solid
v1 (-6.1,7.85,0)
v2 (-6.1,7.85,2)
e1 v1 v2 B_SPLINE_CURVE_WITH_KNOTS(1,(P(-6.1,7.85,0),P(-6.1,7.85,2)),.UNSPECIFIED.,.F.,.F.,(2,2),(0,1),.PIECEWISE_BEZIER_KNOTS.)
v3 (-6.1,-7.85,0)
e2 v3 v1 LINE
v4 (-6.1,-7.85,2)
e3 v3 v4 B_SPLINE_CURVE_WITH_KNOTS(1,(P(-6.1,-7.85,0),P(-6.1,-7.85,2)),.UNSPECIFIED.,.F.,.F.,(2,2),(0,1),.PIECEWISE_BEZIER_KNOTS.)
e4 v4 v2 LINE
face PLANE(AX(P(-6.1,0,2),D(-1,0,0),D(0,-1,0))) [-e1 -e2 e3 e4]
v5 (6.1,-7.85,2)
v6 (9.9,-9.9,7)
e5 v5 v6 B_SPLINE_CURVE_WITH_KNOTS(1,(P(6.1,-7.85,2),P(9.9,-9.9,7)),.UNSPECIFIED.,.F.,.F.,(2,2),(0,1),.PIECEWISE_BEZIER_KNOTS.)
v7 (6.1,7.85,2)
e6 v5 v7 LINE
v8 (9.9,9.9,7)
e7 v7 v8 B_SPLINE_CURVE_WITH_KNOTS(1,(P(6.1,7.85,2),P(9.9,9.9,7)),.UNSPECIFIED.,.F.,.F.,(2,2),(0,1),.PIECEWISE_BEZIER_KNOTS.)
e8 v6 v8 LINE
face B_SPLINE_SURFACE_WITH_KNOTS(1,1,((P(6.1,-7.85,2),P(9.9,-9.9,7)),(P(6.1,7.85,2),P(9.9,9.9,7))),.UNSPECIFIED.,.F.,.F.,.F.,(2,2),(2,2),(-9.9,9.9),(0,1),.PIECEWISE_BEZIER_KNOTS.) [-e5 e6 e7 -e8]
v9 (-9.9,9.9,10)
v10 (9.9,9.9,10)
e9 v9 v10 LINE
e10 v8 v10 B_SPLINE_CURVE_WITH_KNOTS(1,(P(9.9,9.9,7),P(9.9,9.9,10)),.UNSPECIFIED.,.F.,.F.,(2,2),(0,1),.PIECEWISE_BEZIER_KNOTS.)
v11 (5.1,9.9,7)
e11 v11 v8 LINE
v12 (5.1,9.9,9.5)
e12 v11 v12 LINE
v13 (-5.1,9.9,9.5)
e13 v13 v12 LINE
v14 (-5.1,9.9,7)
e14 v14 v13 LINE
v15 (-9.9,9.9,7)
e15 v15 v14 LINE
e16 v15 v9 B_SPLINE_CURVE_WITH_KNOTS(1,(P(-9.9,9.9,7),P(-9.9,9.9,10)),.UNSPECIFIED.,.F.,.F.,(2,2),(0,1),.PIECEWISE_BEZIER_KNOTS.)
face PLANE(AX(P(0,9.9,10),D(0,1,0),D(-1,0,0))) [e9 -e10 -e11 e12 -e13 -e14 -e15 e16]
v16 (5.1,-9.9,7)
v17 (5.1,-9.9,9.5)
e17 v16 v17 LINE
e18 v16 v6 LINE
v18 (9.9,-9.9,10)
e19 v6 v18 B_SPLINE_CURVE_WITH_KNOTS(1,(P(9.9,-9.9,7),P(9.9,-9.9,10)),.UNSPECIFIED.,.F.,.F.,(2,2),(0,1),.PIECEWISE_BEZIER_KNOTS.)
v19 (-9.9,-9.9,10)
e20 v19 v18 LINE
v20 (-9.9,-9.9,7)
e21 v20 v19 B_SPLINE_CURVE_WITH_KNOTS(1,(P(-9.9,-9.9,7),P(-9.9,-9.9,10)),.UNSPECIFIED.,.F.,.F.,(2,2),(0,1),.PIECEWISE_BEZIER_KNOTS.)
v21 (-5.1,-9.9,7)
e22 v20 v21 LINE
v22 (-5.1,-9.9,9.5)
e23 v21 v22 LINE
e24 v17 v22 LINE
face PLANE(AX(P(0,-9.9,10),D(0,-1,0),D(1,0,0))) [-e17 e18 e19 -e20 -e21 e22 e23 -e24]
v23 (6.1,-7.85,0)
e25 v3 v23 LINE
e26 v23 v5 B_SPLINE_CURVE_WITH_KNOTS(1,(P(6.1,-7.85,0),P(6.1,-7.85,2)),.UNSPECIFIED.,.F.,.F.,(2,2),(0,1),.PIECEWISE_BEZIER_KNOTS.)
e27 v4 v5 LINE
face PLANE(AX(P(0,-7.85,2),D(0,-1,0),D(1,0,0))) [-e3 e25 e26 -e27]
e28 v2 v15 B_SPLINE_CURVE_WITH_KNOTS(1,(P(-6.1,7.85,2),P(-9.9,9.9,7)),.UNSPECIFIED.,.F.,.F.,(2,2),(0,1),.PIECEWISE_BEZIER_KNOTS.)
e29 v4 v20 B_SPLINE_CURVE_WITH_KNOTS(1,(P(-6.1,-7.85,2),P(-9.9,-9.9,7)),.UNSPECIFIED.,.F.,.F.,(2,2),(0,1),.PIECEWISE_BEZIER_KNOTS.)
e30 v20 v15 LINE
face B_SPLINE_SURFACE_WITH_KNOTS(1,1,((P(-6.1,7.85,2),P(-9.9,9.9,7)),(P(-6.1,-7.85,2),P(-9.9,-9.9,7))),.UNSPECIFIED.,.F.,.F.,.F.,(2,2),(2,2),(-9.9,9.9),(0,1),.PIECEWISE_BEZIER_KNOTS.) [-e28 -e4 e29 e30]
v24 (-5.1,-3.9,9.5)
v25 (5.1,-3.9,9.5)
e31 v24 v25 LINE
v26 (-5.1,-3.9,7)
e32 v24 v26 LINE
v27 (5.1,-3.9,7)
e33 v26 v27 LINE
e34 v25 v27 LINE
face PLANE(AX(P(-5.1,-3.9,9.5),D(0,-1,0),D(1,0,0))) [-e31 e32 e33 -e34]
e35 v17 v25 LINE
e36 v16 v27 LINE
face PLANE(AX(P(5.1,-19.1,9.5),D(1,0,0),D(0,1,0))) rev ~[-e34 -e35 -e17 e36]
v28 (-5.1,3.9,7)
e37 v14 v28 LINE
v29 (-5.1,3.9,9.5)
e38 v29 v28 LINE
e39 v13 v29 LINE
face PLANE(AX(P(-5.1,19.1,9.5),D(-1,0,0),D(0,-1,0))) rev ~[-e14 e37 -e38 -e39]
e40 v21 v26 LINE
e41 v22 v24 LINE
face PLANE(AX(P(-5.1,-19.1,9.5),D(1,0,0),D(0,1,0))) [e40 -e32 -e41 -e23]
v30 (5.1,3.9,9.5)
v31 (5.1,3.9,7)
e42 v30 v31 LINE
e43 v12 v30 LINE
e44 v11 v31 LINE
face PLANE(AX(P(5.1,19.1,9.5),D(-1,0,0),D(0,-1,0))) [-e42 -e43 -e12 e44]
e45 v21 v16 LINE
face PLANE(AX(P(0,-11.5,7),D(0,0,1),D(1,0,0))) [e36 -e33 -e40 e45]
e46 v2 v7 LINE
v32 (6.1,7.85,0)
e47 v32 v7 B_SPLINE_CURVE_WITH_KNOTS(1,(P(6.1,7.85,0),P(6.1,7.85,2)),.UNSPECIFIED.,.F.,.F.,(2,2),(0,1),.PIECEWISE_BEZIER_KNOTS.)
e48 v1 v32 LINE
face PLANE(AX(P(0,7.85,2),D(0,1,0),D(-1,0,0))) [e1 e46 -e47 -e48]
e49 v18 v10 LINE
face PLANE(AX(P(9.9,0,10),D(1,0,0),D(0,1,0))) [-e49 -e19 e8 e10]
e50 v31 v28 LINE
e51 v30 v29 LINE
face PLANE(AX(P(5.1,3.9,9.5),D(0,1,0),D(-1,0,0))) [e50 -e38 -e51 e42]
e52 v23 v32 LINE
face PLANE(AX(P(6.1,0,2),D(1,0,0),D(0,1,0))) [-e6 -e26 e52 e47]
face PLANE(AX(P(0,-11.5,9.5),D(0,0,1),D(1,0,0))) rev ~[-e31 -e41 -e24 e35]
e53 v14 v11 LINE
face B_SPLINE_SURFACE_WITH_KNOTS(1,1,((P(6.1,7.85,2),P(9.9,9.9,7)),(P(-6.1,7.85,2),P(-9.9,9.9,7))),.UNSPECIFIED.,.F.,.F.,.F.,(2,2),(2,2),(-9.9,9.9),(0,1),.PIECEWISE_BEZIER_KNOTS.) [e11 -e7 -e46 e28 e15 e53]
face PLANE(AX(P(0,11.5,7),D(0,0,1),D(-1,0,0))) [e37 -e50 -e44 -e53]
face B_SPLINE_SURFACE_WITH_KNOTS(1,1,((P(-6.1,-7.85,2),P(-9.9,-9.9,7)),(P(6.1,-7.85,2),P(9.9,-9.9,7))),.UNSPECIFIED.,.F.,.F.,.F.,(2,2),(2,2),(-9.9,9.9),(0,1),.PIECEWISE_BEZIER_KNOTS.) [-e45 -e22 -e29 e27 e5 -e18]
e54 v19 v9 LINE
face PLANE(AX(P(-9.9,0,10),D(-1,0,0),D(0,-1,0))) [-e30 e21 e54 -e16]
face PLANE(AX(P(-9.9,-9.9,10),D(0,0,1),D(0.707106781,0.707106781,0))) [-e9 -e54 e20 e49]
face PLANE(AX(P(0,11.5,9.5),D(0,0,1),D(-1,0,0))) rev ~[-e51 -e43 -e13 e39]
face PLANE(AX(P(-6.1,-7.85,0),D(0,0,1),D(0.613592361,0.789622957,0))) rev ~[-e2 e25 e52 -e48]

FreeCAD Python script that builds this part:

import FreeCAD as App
import Part
import Sketcher
from FreeCAD import Vector
Q = App.Units.Quantity


def add_polygon(sketch, points):
    """Adds a closed chain of lines whose ends are joined by coincident constraints."""
    first, n = sketch.GeometryCount, len(points)
    for a, b in zip(points, points[1:] + points[:1]):
        sketch.addGeometry(Part.LineSegment(App.Vector(*a, 0), App.Vector(*b, 0)), False)
    for i in range(n):
        sketch.addConstraint(Sketcher.Constraint("Coincident", first + i, 2, first + (i + 1) % n, 1))

doc = App.newDocument("Part")
params = doc.addObject("Spreadsheet::Sheet", "Params")
for row, (alias, value) in enumerate([
    ("sketch1_width", "12.2 mm"),
    ("sketch1_height", "15.7 mm"),
    ("sketch2_width", "12.2 mm"),
    ("sketch2_height", "15.7 mm"),
    ("sketch3_width", "19.8 mm"),
    ("sketch4_width", "19.8 mm"),
    ("sketch5_width", "10.2 mm"),
    ("sketch5_height", "15.2 mm"),
    ("pocket1_length", "2.5 mm"),
], start=1):
    params.set(f"A{row}", alias)
    params.set(f"B{row}", "=" + value)
    params.setAlias(f"B{row}", alias)

body = doc.addObject("PartDesign::Body", "Body")

sketch1 = doc.addObject("Sketcher::SketchObject", "Sketch")
body.addObject(sketch1)
sketch1.AttachmentSupport = (doc.XY_Plane, [""])
sketch1.MapMode = "FlatFace"
add_polygon(sketch1, [(-6.1, 7.85), (-6.1, -7.85), (6.1, -7.85), (6.1, 7.85)])
sketch1.addConstraint([
    Sketcher.Constraint("Vertical", 0),
    Sketcher.Constraint("Horizontal", 1),
    Sketcher.Constraint("Vertical", 2),
    Sketcher.Constraint("Horizontal", 3),
    Sketcher.Constraint("Symmetric", 0, 2, 2, 2, -1, 1),
    Sketcher.Constraint("DistanceX", 1, 1, 1, 2, Q("12.2 mm")),
    Sketcher.Constraint("DistanceY", 0, 2, 0, 1, Q("15.7 mm")),
])
sketch1.setExpression("Constraints[9]", "Params.sketch1_width")
sketch1.setExpression("Constraints[10]", "Params.sketch1_height")

sketch2 = doc.addObject("Sketcher::SketchObject", "Sketch001")
body.addObject(sketch2)
sketch2.AttachmentSupport = (doc.XY_Plane, [""])
sketch2.MapMode = "FlatFace"
sketch2.AttachmentOffset = App.Placement(Vector(0, 0, 2), App.Rotation())
add_polygon(sketch2, [(-6.1, 7.85), (-6.1, -7.85), (6.1, -7.85), (6.1, 7.85)])
sketch2.addConstraint([
    Sketcher.Constraint("Vertical", 0),
    Sketcher.Constraint("Horizontal", 1),
    Sketcher.Constraint("Vertical", 2),
    Sketcher.Constraint("Horizontal", 3),
    Sketcher.Constraint("Symmetric", 0, 2, 2, 2, -1, 1),
    Sketcher.Constraint("DistanceX", 1, 1, 1, 2, Q("12.2 mm")),
    Sketcher.Constraint("DistanceY", 0, 2, 0, 1, Q("15.7 mm")),
])
sketch2.setExpression("Constraints[9]", "Params.sketch2_width")
sketch2.setExpression("Constraints[10]", "Params.sketch2_height")

sketch3 = doc.addObject("Sketcher::SketchObject", "Sketch002")
body.addObject(sketch3)
sketch3.AttachmentSupport = (doc.XY_Plane, [""])
sketch3.MapMode = "FlatFace"
sketch3.AttachmentOffset = App.Placement(Vector(0, 0, 7), App.Rotation())
add_polygon(sketch3, [(-9.9, 9.9), (-9.9, -9.9), (9.9, -9.9), (9.9, 9.9)])
sketch3.addConstraint([
    Sketcher.Constraint("Vertical", 0),
    Sketcher.Constraint("Horizontal", 1),
    Sketcher.Constraint("Vertical", 2),
    Sketcher.Constraint("Horizontal", 3),
    Sketcher.Constraint("Symmetric", 0, 2, 2, 2, -1, 1),
    Sketcher.Constraint("Equal", 3, 0),
    Sketcher.Constraint("DistanceX", 1, 1, 1, 2, Q("19.8 mm")),
])
sketch3.setExpression("Constraints[10]", "Params.sketch3_width")

sketch4 = doc.addObject("Sketcher::SketchObject", "Sketch003")
body.addObject(sketch4)
sketch4.AttachmentSupport = (doc.XY_Plane, [""])
sketch4.MapMode = "FlatFace"
sketch4.AttachmentOffset = App.Placement(Vector(0, 0, 10), App.Rotation())
add_polygon(sketch4, [(-9.9, 9.9), (-9.9, -9.9), (9.9, -9.9), (9.9, 9.9)])
sketch4.addConstraint([
    Sketcher.Constraint("Vertical", 0),
    Sketcher.Constraint("Horizontal", 1),
    Sketcher.Constraint("Vertical", 2),
    Sketcher.Constraint("Horizontal", 3),
    Sketcher.Constraint("Symmetric", 0, 2, 2, 2, -1, 1),
    Sketcher.Constraint("Equal", 3, 0),
    Sketcher.Constraint("DistanceX", 1, 1, 1, 2, Q("19.8 mm")),
])
sketch4.setExpression("Constraints[10]", "Params.sketch4_width")

additiveloft = doc.addObject("PartDesign::AdditiveLoft", "AdditiveLoft")
body.addObject(additiveloft)
additiveloft.Profile = sketch1
additiveloft.Sections = [sketch2, sketch3, sketch4]
additiveloft.Ruled = True

sketch5 = doc.addObject("Sketcher::SketchObject", "Sketch004")
body.addObject(sketch5)
sketch5.AttachmentSupport = (doc.XY_Plane, [""])
sketch5.MapMode = "FlatFace"
sketch5.AttachmentOffset = App.Placement(Vector(0, 0, 9.5), App.Rotation())
add_polygon(sketch5, [(-5.1, -3.9), (-5.1, -19.1), (5.1, -19.1), (5.1, -3.9)])
sketch5.addConstraint([
    Sketcher.Constraint("Vertical", 0),
    Sketcher.Constraint("Horizontal", 1),
    Sketcher.Constraint("Vertical", 2),
    Sketcher.Constraint("Horizontal", 3),
    Sketcher.Constraint("DistanceX", 1, 1, 1, 2, Q("10.2 mm")),
    Sketcher.Constraint("DistanceY", 0, 2, 0, 1, Q("15.2 mm")),
    Sketcher.Constraint("DistanceX", 0, 2, -1, 1, Q("5.1 mm")),
    Sketcher.Constraint("DistanceY", 0, 2, -1, 1, Q("19.1 mm")),
])
sketch5.setExpression("Constraints[8]", "Params.sketch5_width")
sketch5.setExpression("Constraints[9]", "Params.sketch5_height")
pocket1 = doc.addObject("PartDesign::Pocket", "Pocket")
body.addObject(pocket1)
pocket1.Profile = sketch5
pocket1.setExpression("Length", "Params.pocket1_length")
doc.recompute()

polarpattern = doc.addObject("PartDesign::PolarPattern", "PolarPattern")
body.addObject(polarpattern)
polarpattern.Originals = [pocket1]
polarpattern.Axis = (doc.Z_Axis, [""])
polarpattern.Angle = 360
polarpattern.Occurrences = 2
body.Tip = polarpattern

doc.recompute()
